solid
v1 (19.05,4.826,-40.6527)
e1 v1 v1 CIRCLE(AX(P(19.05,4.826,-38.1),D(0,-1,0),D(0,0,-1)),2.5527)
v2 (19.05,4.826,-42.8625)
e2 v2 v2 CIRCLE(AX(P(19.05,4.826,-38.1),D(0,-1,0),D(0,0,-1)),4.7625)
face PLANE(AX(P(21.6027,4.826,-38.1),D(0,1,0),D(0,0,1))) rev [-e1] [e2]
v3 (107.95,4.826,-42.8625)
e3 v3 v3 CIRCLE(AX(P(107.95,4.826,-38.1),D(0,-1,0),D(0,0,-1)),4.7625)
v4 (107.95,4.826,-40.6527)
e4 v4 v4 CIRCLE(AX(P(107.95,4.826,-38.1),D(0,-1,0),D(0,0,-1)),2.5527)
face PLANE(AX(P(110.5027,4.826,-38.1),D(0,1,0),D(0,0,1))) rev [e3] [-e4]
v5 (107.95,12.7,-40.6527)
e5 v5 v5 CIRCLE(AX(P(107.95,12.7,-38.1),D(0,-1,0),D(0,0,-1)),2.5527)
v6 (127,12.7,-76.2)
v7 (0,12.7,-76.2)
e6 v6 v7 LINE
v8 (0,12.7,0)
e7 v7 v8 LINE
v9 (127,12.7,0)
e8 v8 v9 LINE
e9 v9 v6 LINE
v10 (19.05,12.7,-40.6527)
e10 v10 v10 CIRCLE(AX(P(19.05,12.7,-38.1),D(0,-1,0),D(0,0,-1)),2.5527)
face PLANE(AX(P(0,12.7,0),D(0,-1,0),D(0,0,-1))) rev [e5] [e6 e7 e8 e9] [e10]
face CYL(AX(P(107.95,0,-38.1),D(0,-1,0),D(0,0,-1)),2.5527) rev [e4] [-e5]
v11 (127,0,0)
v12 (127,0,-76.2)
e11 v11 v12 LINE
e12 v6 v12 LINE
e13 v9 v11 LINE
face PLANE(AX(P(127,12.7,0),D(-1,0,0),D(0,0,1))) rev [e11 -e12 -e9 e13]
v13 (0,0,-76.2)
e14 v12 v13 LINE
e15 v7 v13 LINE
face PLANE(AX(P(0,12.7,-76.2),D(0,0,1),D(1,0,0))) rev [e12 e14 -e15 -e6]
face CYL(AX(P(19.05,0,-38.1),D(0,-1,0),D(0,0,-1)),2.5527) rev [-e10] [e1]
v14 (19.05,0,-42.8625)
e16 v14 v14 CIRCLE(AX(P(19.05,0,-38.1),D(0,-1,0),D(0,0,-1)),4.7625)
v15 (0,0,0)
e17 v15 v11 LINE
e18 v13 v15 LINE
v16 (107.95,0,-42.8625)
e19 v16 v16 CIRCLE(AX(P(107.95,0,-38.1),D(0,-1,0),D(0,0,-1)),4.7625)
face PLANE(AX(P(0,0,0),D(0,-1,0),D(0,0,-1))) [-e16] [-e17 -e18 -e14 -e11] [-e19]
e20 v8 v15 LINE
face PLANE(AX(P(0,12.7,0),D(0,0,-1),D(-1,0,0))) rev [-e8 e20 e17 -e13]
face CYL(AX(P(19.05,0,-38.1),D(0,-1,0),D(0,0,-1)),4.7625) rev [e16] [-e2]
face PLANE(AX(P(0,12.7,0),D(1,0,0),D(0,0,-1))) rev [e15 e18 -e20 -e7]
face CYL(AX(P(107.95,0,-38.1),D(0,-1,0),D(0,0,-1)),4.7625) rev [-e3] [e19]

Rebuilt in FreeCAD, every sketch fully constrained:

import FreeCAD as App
import Part
import Sketcher
Q = App.Units.Quantity


def add_polygon(sketch, points):
    """Adds a closed chain of lines whose ends are joined by coincident constraints."""
    first, n = sketch.GeometryCount, len(points)
    for a, b in zip(points, points[1:] + points[:1]):
        sketch.addGeometry(Part.LineSegment(App.Vector(*a, 0), App.Vector(*b, 0)), False)
    for i in range(n):
        sketch.addConstraint(Sketcher.Constraint("Coincident", first + i, 2, first + (i + 1) % n, 1))

doc = App.newDocument("Part")
params = doc.addObject("Spreadsheet::Sheet", "Params")
for row, (alias, value) in enumerate([
    ("sketch1_width", "5 in"),
    ("sketch1_height", "3 in"),
    ("pad1_length", "0.5 in"),
    ("sketch2_diameter", "0.201 in"),
    ("hole_diameter", "0.201 in"),
    ("hole_cbore_diameter", "0.375 in"),
    ("hole_cbore_depth", "0.19 in"),
], start=1):
    params.set(f"A{row}", alias)
    params.set(f"B{row}", "=" + value)
    params.setAlias(f"B{row}", alias)

body = doc.addObject("PartDesign::Body", "Body")

sketch1 = body.newObject("Sketcher::SketchObject", "Sketch")
sketch1.AttachmentSupport = (doc.getObject("XZ_Plane"), [""])
sketch1.MapMode = "FlatFace"
add_polygon(sketch1, [(0, -76), (0, 0), (127, 0), (127, -76)])
sketch1.addConstraint([
    Sketcher.Constraint("Vertical", 0),
    Sketcher.Constraint("Horizontal", 1),
    Sketcher.Constraint("Vertical", 2),
    Sketcher.Constraint("Horizontal", 3),
    Sketcher.Constraint("Coincident", 0, 2, -1, 1),
    Sketcher.Constraint("DistanceX", 1, 1, 1, 2, Q("5 in")),
    Sketcher.Constraint("DistanceY", 0, 1, 0, 2, Q("3 in")),
])
sketch1.setExpression("Constraints[9]", "Params.sketch1_width")
sketch1.setExpression("Constraints[10]", "Params.sketch1_height")
pad1 = body.newObject("PartDesign::Pad", "Pad")
pad1.Profile = sketch1
pad1.setExpression("Length", "Params.pad1_length")
pad1.Reversed = True

sketch2 = body.newObject("Sketcher::SketchObject", "Sketch001")
sketch2.AttachmentSupport = (doc.getObject("XZ_Plane"), [""])
sketch2.MapMode = "FlatFace"
sketch2.addGeometry([
    Part.Circle(App.Vector(19.1, -38.1, 0), App.Vector(0, 0, 1), 2.6),
    Part.Circle(App.Vector(108, -38.1, 0), App.Vector(0, 0, 1), 2.6),
], False)
sketch2.addConstraint([
    Sketcher.Constraint("Equal", 0, 1),
    Sketcher.Constraint("Horizontal", 0, 3, 1, 3),
    Sketcher.Constraint("Diameter", 0, Q("0.201 in")),
    Sketcher.Constraint("DistanceY", 0, 3, -1, 1, Q("1.5 in")),
    Sketcher.Constraint("DistanceX", 0, 3, 1, 3, Q("3.5 in")),
    Sketcher.Constraint("DistanceX", -1, 1, 0, 3, Q("0.75 in")),
])
sketch2.setExpression("Constraints[2]", "Params.sketch2_diameter")
doc.recompute()
hole = body.newObject("PartDesign::Hole", "Hole")
hole.Profile = sketch2
hole.ThreadType = "None"
hole.setExpression("Diameter", "Params.hole_diameter")
hole.DepthType = "ThroughAll"
hole.HoleCutType = "Counterbore"
hole.setExpression("HoleCutDiameter", "Params.hole_cbore_diameter")
hole.setExpression("HoleCutDepth", "Params.hole_cbore_depth")

doc.recompute()
